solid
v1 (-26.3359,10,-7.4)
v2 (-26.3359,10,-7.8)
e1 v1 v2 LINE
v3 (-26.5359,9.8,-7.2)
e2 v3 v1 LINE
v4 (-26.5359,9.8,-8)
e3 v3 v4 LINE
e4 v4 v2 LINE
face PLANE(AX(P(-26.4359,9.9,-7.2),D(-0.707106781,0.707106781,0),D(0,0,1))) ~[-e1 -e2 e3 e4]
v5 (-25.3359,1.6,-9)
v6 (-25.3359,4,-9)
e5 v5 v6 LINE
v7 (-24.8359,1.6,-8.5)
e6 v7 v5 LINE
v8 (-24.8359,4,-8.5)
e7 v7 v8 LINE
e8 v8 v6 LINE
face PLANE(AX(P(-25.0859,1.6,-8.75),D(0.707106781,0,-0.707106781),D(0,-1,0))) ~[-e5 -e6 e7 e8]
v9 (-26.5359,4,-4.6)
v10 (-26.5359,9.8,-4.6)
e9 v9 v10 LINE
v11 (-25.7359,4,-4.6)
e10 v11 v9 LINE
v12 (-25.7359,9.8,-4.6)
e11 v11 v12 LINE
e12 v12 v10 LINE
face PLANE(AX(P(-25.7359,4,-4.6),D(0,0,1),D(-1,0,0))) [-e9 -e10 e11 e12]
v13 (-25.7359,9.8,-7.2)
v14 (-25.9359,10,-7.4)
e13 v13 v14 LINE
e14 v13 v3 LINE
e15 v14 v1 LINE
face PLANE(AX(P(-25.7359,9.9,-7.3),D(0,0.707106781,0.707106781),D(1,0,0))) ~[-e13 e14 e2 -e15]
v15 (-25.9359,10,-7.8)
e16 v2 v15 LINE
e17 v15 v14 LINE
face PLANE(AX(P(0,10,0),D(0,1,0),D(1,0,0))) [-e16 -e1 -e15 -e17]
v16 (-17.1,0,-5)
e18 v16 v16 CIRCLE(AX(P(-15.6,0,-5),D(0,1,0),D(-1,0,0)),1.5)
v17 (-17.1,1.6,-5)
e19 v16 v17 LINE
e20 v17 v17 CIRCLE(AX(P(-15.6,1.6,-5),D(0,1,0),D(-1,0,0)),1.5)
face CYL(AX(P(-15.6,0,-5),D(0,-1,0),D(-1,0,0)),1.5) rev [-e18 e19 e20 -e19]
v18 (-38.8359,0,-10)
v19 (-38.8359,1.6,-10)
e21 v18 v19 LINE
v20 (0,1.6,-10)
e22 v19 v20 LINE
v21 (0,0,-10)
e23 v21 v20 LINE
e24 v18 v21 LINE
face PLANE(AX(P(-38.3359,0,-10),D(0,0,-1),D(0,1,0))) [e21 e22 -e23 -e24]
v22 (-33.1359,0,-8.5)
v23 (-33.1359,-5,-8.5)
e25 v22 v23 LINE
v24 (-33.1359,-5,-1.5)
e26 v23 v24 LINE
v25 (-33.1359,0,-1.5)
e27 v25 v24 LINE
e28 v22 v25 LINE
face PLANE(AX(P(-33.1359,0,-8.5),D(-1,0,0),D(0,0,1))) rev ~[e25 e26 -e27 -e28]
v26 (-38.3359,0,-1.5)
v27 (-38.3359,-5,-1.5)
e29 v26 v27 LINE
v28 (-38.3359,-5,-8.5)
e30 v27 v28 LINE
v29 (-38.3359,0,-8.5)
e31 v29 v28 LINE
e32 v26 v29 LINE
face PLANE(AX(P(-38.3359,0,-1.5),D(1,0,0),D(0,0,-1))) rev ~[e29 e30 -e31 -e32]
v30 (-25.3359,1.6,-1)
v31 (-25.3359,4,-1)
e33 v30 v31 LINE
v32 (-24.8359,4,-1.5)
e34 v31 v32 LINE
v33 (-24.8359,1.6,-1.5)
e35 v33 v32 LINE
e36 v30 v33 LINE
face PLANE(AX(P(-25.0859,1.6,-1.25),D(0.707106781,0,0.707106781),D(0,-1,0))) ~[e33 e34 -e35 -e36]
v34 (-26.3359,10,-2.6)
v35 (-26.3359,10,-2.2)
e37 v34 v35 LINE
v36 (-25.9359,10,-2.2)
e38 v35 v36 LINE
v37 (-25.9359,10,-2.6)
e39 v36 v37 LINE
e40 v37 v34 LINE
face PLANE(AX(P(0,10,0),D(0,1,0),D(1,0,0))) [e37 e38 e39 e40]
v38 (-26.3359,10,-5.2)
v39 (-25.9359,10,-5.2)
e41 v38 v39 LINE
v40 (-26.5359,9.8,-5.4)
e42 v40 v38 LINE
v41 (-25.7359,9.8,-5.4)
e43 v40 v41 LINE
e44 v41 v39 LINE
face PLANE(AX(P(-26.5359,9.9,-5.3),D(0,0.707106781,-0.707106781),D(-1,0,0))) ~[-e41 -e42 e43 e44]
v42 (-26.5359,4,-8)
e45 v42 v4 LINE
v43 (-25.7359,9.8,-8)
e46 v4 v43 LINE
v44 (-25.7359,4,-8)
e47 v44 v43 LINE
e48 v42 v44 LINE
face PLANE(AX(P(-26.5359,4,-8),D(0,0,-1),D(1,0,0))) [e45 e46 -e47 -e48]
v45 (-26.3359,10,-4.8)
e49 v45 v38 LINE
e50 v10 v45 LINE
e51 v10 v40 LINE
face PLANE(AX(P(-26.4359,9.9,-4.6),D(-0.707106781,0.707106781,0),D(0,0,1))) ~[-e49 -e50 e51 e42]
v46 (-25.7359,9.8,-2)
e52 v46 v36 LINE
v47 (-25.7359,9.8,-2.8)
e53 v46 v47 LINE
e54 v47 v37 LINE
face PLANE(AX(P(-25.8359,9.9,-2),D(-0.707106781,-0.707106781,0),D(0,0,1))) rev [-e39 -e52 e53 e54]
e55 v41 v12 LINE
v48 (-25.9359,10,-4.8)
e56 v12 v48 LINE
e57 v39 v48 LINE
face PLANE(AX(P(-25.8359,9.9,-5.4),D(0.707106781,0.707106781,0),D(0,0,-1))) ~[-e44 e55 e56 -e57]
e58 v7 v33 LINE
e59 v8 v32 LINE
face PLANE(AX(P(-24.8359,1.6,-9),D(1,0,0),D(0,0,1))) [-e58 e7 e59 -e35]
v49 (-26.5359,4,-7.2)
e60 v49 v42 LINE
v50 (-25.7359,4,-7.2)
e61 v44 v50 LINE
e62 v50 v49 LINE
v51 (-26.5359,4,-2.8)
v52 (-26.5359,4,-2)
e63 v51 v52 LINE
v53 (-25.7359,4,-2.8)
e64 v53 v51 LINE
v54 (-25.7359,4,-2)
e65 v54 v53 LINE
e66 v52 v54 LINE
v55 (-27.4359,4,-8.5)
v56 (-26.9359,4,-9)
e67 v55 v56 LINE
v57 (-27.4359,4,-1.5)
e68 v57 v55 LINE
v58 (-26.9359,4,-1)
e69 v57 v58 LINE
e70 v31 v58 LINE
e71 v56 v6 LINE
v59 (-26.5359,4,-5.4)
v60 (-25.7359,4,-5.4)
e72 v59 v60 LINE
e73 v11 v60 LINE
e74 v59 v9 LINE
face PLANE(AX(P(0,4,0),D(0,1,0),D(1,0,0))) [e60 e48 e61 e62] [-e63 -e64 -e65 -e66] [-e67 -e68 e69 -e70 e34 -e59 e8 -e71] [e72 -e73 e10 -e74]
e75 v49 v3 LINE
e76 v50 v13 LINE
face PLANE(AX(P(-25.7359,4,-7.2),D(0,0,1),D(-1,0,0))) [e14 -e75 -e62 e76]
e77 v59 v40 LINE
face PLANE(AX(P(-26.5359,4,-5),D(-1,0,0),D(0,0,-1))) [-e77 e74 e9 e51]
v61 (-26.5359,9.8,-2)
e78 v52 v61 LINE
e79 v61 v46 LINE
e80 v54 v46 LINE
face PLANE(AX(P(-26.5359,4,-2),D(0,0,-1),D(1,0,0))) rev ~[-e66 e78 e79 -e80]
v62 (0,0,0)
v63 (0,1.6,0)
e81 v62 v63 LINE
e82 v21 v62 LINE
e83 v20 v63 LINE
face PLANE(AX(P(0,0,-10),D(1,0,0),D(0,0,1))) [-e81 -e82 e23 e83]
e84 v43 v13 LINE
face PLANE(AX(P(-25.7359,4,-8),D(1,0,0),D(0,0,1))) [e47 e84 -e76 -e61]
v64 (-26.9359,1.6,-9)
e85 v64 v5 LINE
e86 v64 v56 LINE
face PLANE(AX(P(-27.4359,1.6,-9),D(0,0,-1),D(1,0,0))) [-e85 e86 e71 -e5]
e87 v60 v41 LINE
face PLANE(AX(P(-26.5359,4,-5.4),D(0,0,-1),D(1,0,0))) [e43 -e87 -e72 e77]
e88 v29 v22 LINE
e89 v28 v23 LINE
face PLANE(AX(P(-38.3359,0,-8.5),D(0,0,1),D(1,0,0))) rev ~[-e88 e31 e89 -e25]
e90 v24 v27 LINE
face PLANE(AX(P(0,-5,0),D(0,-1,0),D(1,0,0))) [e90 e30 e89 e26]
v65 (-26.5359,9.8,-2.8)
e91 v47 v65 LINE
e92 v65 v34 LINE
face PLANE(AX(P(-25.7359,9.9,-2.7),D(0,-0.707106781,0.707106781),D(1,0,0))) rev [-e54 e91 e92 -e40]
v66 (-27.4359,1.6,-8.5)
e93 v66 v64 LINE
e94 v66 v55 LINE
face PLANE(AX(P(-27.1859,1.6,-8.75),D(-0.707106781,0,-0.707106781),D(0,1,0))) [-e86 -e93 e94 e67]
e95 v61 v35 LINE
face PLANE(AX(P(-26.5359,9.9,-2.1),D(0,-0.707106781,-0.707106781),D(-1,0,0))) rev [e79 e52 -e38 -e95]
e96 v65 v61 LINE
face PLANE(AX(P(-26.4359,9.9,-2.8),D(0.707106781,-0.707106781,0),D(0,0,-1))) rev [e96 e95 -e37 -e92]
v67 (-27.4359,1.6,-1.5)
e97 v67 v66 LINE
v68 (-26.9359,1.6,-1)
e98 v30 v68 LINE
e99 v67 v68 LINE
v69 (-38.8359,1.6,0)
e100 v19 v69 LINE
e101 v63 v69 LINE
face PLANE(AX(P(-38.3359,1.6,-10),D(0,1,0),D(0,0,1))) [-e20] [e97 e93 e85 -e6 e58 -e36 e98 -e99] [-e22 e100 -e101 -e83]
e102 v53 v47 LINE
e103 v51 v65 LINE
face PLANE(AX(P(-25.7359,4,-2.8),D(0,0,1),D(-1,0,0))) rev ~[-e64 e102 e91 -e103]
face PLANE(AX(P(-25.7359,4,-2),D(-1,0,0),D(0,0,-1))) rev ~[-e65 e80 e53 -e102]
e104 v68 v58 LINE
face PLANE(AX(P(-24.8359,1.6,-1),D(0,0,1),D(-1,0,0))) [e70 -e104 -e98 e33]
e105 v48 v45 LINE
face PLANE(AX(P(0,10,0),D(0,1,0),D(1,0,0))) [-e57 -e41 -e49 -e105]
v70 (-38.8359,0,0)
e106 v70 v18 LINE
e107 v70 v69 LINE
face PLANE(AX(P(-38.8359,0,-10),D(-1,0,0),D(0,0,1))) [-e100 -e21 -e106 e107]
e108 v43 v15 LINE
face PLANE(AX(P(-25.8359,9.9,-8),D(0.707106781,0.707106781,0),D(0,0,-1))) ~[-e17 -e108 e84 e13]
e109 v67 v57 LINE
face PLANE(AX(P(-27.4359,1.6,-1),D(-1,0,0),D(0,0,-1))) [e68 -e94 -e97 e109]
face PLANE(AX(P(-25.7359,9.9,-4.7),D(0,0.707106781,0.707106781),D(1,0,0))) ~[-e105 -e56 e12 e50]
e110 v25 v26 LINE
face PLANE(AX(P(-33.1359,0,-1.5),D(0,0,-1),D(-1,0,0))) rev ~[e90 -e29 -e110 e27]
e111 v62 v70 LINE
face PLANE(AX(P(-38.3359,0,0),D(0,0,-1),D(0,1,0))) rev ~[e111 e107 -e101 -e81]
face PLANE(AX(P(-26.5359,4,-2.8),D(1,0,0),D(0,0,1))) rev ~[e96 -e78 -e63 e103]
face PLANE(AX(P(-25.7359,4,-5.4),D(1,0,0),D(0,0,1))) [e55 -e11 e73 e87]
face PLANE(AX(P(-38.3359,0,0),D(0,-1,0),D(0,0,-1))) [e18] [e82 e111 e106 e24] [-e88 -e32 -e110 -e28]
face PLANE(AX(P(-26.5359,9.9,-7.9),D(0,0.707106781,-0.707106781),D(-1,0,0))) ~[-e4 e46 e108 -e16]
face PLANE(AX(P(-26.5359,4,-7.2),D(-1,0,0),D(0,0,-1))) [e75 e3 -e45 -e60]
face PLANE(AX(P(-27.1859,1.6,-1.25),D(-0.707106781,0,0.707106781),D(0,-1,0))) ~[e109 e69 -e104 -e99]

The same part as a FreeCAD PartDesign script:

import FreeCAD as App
import Part
import Sketcher

V = App.Vector


def edges_at(feature, points):
    """Names of the edges that pass closest to the given points."""
    edges = feature.Shape.Edges
    near = lambda p: min(range(len(edges)), key=lambda i: edges[i].distToShape(Part.Vertex(*p))[0])
    return sorted({f"Edge{near(p) + 1}" for p in points})


def add_polygon(sketch, points):
    """Adds a closed chain of lines whose ends are joined by coincident constraints."""
    first, n = sketch.GeometryCount, len(points)
    for a, b in zip(points, points[1:] + points[:1]):
        sketch.addGeometry(Part.LineSegment(App.Vector(*a, 0), App.Vector(*b, 0)), False)
    for i in range(n):
        sketch.addConstraint(Sketcher.Constraint("Coincident", first + i, 2, first + (i + 1) % n, 1))

doc = App.newDocument("Part")
body = doc.addObject("PartDesign::Body", "Body")

# Sketch on XZ plane
sketch1 = body.newObject("Sketcher::SketchObject", "Sketch")
sketch1.AttachmentSupport = (doc.getObject("XZ_Plane"), [""])
sketch1.MapMode = "FlatFace"
add_polygon(sketch1, [(-38.3, 0), (0, 0), (0, -10), (-38.3, -10)])  # lines 0-3
sketch1.addGeometry(Part.Circle(V(-15.6, -5, 0), V(0, 0, 1), 1.5), False)  # 4
sketch1.addConstraint([
    Sketcher.Constraint("Horizontal", 0),
    Sketcher.Constraint("Vertical", 1),
    Sketcher.Constraint("Horizontal", 2),
    Sketcher.Constraint("Vertical", 3),
    Sketcher.Constraint("Coincident", 0, 2, -1, 1),
    Sketcher.Constraint("Diameter", 4, 3.0),
    Sketcher.Constraint("DistanceY", 1, 2, 1, 1, 10.0),
    Sketcher.Constraint("DistanceX", 4, 3, -1, 1, 15.6),
    Sketcher.Constraint("DistanceY", 4, 3, -1, 1, 5.0),
    Sketcher.Constraint("DistanceX", 0, 1, 0, 2, 38.336),
])
pad1 = body.newObject("PartDesign::Pad", "Pad")
pad1.Profile = sketch1
pad1.Length = 1.6
pad1.Reversed = True

# Sketch on XZ plane
sketch2 = body.newObject("Sketcher::SketchObject", "Sketch001")
sketch2.AttachmentSupport = (doc.getObject("XZ_Plane"), [""])
sketch2.MapMode = "FlatFace"
sketch2.AttachmentOffset = App.Placement(V(0, 0, -1.6), App.Rotation())
add_polygon(sketch2, [(-24.8, -9), (-27.4, -9), (-27.4, -1), (-24.8, -1)])  # lines 0-3
sketch2.addConstraint([
    Sketcher.Constraint("Horizontal", 0),
    Sketcher.Constraint("Vertical", 1),
    Sketcher.Constraint("Horizontal", 2),
    Sketcher.Constraint("Vertical", 3),
    Sketcher.Constraint("DistanceY", 1, 1, 1, 2, 8.0),
    Sketcher.Constraint("DistanceX", 0, 2, 0, 1, 2.6),
    Sketcher.Constraint("DistanceY", 0, 2, -1, 1, 9.0),
    Sketcher.Constraint("DistanceX", 0, 2, -1, 1, 27.436),
])
pad2 = body.newObject("PartDesign::Pad", "Pad001")
pad2.Profile = sketch2
pad2.Length = 2.4
pad2.Reversed = True
doc.recompute()

chamfer = body.newObject("PartDesign::Chamfer", "Chamfer")
chamfer.Base = (pad2, edges_at(pad2, [
    (-24.836, 2.8, -1),
    (-27.436, 2.8, -1),
    (-24.836, 2.8, -9),
    (-27.436, 2.8, -9),
]))
chamfer.Size = 0.5

# Sketch on XZ plane
sketch3 = body.newObject("Sketcher::SketchObject", "Sketch002")
sketch3.AttachmentSupport = (doc.getObject("XZ_Plane"), [""])
sketch3.MapMode = "FlatFace"
sketch3.AttachmentOffset = App.Placement(V(0, 0, -4), App.Rotation())
add_polygon(sketch3, [(-25.7, -8), (-26.5, -8), (-26.5, -7.2), (-25.7, -7.2)])  # lines 0-3
add_polygon(sketch3, [(-25.7, -5.4), (-26.5, -5.4), (-26.5, -4.6), (-25.7, -4.6)])  # lines 4-7
add_polygon(sketch3, [(-26.5, -2.8), (-26.5, -2), (-25.7, -2), (-25.7, -2.8)])  # lines 8-11
sketch3.addConstraint([
    Sketcher.Constraint("Horizontal", 0),
    Sketcher.Constraint("Vertical", 1),
    Sketcher.Constraint("Horizontal", 2),
    Sketcher.Constraint("Vertical", 3),
    Sketcher.Constraint("Horizontal", 4),
    Sketcher.Constraint("Vertical", 5),
    Sketcher.Constraint("Horizontal", 6),
    Sketcher.Constraint("Vertical", 7),
    Sketcher.Constraint("Vertical", 8),
    Sketcher.Constraint("Horizontal", 9),
    Sketcher.Constraint("Vertical", 10),
    Sketcher.Constraint("Horizontal", 11),
    Sketcher.Constraint("Vertical", 1, 2, 4, 2),
    Sketcher.Constraint("Vertical", 3, 2, 6, 2),
    Sketcher.Constraint("Vertical", 5, 2, 8, 2),
    Sketcher.Constraint("Vertical", 7, 2, 9, 2),
    Sketcher.Constraint("Equal", 11, 1),
    Sketcher.Constraint("Equal", 3, 5),
    Sketcher.Constraint("Equal", 7, 8),
    Sketcher.Constraint("DistanceX", 0, 2, 0, 1, 0.8),
    Sketcher.Constraint("DistanceY", 0, 2, -1, 1, 8.0),
    Sketcher.Constraint("DistanceY", 8, 2, -1, 1, 2.0),
    Sketcher.Constraint("DistanceY", 4, 2, -1, 1, 5.4),
    Sketcher.Constraint("DistanceX", 0, 2, -1, 1, 26.536),
])
pad3 = body.newObject("PartDesign::Pad", "Pad002")
pad3.Profile = sketch3
pad3.Length = 6
pad3.Reversed = True
doc.recompute()

chamfer2 = body.newObject("PartDesign::Chamfer", "Chamfer001")
chamfer2.Base = (pad3, edges_at(pad3, [
    (-26.136, 10, -2),
    (-26.536, 10, -2.4),
    (-26.136, 10, -2.8),
    (-25.736, 10, -2.4),
    (-26.136, 10, -4.6),
    (-26.536, 10, -5),
    (-26.136, 10, -5.4),
    (-25.736, 10, -5),
    (-26.136, 10, -7.2),
    (-26.536, 10, -7.6),
    (-26.136, 10, -8),
    (-25.736, 10, -7.6),
]))
chamfer2.Size = 0.2

# Sketch on YZ plane
sketch4 = body.newObject("Sketcher::SketchObject", "Sketch003")
sketch4.AttachmentSupport = (doc.getObject("YZ_Plane"), [""])
sketch4.MapMode = "FlatFace"
sketch4.AttachmentOffset = App.Placement(V(0, 0, -38.3359), App.Rotation())
add_polygon(sketch4, [(0, -10), (0, 0), (1.6, 0), (1.6, -10)])  # lines 0-3
sketch4.addConstraint([
    Sketcher.Constraint("Vertical", 0),
    Sketcher.Constraint("Horizontal", 1),
    Sketcher.Constraint("Vertical", 2),
    Sketcher.Constraint("Horizontal", 3),
    Sketcher.Constraint("Coincident", 0, 2, -1, 1),
    Sketcher.Constraint("DistanceY", 0, 1, 0, 2, 10.0),
    Sketcher.Constraint("DistanceX", 1, 1, 1, 2, 1.6),
])
pad4 = body.newObject("PartDesign::Pad", "Pad003")
pad4.Profile = sketch4
pad4.Length = 0.5
pad4.Reversed = True

# Sketch on XZ plane
sketch5 = body.newObject("Sketcher::SketchObject", "Sketch004")
sketch5.AttachmentSupport = (doc.getObject("XZ_Plane"), [""])
sketch5.MapMode = "FlatFace"
add_polygon(sketch5, [(-38, -2), (-38, -8), (-33, -8), (-33, -2)])  # lines 0-3
sketch5.addConstraint([
    Sketcher.Constraint("Vertical", 0),
    Sketcher.Constraint("Horizontal", 1),
    Sketcher.Constraint("Vertical", 2),
    Sketcher.Constraint("Horizontal", 3),
    Sketcher.Constraint("DistanceY", 0, 2, 0, 1, 7.0),
    Sketcher.Constraint("DistanceX", 1, 1, 1, 2, 5.2),
    Sketcher.Constraint("DistanceY", 0, 2, -1, 1, 8.5),
    Sketcher.Constraint("DistanceX", 0, 2, -1, 1, 38.336),
])
pad5 = body.newObject("PartDesign::Pad", "Pad004")
pad5.Profile = sketch5
pad5.Length = 5

doc.recompute()
